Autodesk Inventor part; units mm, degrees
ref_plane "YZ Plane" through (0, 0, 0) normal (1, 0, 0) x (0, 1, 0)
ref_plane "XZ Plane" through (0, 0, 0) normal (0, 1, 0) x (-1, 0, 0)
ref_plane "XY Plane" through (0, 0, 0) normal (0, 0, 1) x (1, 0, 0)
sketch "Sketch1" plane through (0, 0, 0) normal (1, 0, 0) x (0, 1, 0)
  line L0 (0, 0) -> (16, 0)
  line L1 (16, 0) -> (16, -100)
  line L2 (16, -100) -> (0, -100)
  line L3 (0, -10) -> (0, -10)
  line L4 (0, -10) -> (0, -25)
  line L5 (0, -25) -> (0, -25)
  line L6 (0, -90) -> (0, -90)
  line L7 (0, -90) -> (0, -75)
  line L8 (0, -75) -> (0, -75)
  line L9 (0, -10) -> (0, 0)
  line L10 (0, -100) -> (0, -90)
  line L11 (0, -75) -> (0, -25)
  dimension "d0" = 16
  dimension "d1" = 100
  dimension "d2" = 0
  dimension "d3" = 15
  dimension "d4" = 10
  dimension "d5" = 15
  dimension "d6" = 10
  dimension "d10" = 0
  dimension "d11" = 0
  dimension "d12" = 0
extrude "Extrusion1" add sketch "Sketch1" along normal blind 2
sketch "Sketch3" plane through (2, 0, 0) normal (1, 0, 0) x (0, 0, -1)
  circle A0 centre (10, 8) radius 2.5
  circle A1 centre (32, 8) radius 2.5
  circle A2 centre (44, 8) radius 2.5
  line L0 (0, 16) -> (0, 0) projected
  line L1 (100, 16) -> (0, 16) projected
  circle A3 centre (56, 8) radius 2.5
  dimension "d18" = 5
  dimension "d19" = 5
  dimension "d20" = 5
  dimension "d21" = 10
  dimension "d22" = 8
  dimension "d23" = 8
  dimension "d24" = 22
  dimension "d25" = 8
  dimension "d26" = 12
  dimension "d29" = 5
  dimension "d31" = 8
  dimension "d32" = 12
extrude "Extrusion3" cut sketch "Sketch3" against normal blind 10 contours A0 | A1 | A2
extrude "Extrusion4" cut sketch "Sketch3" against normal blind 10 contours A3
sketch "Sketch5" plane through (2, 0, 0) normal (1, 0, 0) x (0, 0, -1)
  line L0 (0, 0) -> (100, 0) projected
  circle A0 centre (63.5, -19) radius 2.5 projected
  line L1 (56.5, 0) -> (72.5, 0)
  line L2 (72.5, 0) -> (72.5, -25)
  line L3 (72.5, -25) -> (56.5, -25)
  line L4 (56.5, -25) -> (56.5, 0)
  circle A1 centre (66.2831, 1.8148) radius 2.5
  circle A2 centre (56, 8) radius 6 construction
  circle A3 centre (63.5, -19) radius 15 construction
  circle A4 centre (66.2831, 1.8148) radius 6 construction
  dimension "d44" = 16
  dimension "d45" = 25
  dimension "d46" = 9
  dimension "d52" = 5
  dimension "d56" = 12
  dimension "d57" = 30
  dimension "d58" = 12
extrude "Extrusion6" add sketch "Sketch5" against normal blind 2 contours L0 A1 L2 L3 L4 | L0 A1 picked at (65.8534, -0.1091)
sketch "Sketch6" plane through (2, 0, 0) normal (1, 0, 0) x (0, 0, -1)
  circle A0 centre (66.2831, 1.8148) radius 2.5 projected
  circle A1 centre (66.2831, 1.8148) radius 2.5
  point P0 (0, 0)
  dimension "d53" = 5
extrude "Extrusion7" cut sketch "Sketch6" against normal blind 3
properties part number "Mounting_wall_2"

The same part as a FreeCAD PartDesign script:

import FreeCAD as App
import Part
import Sketcher

doc = App.newDocument("Part")
body = doc.addObject("PartDesign::Body", "Body")

sketch1 = body.newObject("Sketcher::SketchObject", "Sketch")
sketch1.AttachmentSupport = (doc.getObject("YZ_Plane"), [""])
sketch1.MapMode = "FlatFace"
sketch1.addGeometry([
    Part.LineSegment(App.Vector(16, 0, 0), App.Vector(0, 0, 0)),
    Part.LineSegment(App.Vector(0, 0, 0), App.Vector(0, -100, 0)),
    Part.LineSegment(App.Vector(0, -100, 0), App.Vector(16, -100, 0)),
    Part.LineSegment(App.Vector(16, -100, 0), App.Vector(16, 0, 0)),
], False)
sketch1.addConstraint([
    Sketcher.Constraint("Coincident", 0, 2, 1, 1),
    Sketcher.Constraint("Coincident", 1, 2, 2, 1),
    Sketcher.Constraint("Coincident", 2, 2, 3, 1),
    Sketcher.Constraint("Coincident", 3, 2, 0, 1),
    Sketcher.Constraint("Horizontal", 0),
    Sketcher.Constraint("Vertical", 1),
    Sketcher.Constraint("Horizontal", 2),
    Sketcher.Constraint("Vertical", 3),
    Sketcher.Constraint("Coincident", 0, 2, -1, 1),
    Sketcher.Constraint("DistanceX", 0, 2, 0, 1, 16.0),
    Sketcher.Constraint("DistanceY", 1, 2, 1, 1, 100.0),
])
pad1 = body.newObject("PartDesign::Pad", "Pad")
pad1.Profile = sketch1
pad1.Length = 2

sketch2 = body.newObject("Sketcher::SketchObject", "Sketch001")
sketch2.AttachmentSupport = (doc.getObject("YZ_Plane"), [""])
sketch2.MapMode = "FlatFace"
sketch2.AttachmentOffset = App.Placement(App.Vector(0, 0, 2), App.Rotation())
sketch2.addGeometry([
    Part.Circle(App.Vector(8, -10, 0), App.Vector(0, 0, 1), 2.5),
    Part.Circle(App.Vector(8, -32, 0), App.Vector(0, 0, 1), 2.5),
    Part.Circle(App.Vector(8, -44, 0), App.Vector(0, 0, 1), 2.5),
], False)
sketch2.addConstraint([
    Sketcher.Constraint("Equal", 0, 1),
    Sketcher.Constraint("Equal", 1, 2),
    Sketcher.Constraint("Vertical", 0, 3, 1, 3),
    Sketcher.Constraint("Vertical", 1, 3, 2, 3),
    Sketcher.Constraint("Diameter", 0, 5.0),
    Sketcher.Constraint("DistanceX", -1, 1, 0, 3, 8.0),
    Sketcher.Constraint("DistanceY", 0, 3, -1, 1, 10.0),
    Sketcher.Constraint("DistanceY", 1, 3, 0, 3, 22.0),
    Sketcher.Constraint("DistanceY", 2, 3, 1, 3, 12.0),
])
pocket1 = body.newObject("PartDesign::Pocket", "Pocket")
pocket1.Profile = sketch2
pocket1.Length = 10

sketch3 = body.newObject("Sketcher::SketchObject", "Sketch002")
sketch3.AttachmentSupport = (doc.getObject("YZ_Plane"), [""])
sketch3.MapMode = "FlatFace"
sketch3.AttachmentOffset = App.Placement(App.Vector(0, 0, 2), App.Rotation())
sketch3.addGeometry(Part.Circle(App.Vector(8, -56, 0), App.Vector(0, 0, 1), 2.5), False)
sketch3.addConstraint([
    Sketcher.Constraint("Diameter", 0, 5.0),
    Sketcher.Constraint("DistanceX", -1, 1, 0, 3, 8.0),
    Sketcher.Constraint("DistanceY", 0, 3, -1, 1, 56.0),
])
pocket2 = body.newObject("PartDesign::Pocket", "Pocket001")
pocket2.Profile = sketch3
pocket2.Length = 10

sketch4 = body.newObject("Sketcher::SketchObject", "Sketch003")
sketch4.AttachmentSupport = (doc.getObject("YZ_Plane"), [""])
sketch4.MapMode = "FlatFace"
sketch4.AttachmentOffset = App.Placement(App.Vector(0, 0, 2), App.Rotation())
sketch4.addGeometry([
    Part.LineSegment(App.Vector(0, -56.5, 0), App.Vector(-25, -56.5, 0)),
    Part.LineSegment(App.Vector(-25, -56.5, 0), App.Vector(-25, -72.5, 0)),
    Part.LineSegment(App.Vector(-25, -72.5, 0), App.Vector(0, -72.5, 0)),
    Part.LineSegment(App.Vector(0, -72.5, 0), App.Vector(0, -56.5, 0)),
    Part.Circle(App.Vector(-19, -63.5, 0), App.Vector(0, 0, 1), 2.5),
], False)
sketch4.addConstraint([
    Sketcher.Constraint("Coincident", 0, 2, 1, 1),
    Sketcher.Constraint("Coincident", 1, 2, 2, 1),
    Sketcher.Constraint("Coincident", 2, 2, 3, 1),
    Sketcher.Constraint("Coincident", 3, 2, 0, 1),
    Sketcher.Constraint("Horizontal", 0),
    Sketcher.Constraint("Vertical", 1),
    Sketcher.Constraint("Horizontal", 2),
    Sketcher.Constraint("Vertical", 3),
    Sketcher.Constraint("PointOnObject", 2, 2, -2),
    Sketcher.Constraint("Diameter", 4, 5.0),
    Sketcher.Constraint("DistanceX", 0, 2, 0, 1, 25.0),
    Sketcher.Constraint("DistanceY", 1, 2, 1, 1, 16.0),
    Sketcher.Constraint("DistanceY", 1, 2, 4, 3, 9.0),
    Sketcher.Constraint("DistanceX", 4, 3, -1, 1, 19.0),
    Sketcher.Constraint("DistanceY", 4, 3, -1, 1, 63.5),
])
pad2 = body.newObject("PartDesign::Pad", "Pad001")
pad2.Profile = sketch4
pad2.Length = 2
pad2.Reversed = True

sketch5 = body.newObject("Sketcher::SketchObject", "Sketch004")
sketch5.AttachmentSupport = (doc.getObject("YZ_Plane"), [""])
sketch5.MapMode = "FlatFace"
sketch5.AttachmentOffset = App.Placement(App.Vector(0, 0, 2), App.Rotation())
sketch5.addGeometry(Part.Circle(App.Vector(1.8, -66.3, 0), App.Vector(0, 0, 1), 2.5), False)
sketch5.addConstraint([
    Sketcher.Constraint("Diameter", 0, 5.0),
    Sketcher.Constraint("DistanceY", 0, 3, -1, 1, 66.283),
    Sketcher.Constraint("DistanceX", -1, 1, 0, 3, 1.8148),
])
pocket3 = body.newObject("PartDesign::Pocket", "Pocket002")
pocket3.Profile = sketch5
pocket3.Length = 3

doc.recompute()
